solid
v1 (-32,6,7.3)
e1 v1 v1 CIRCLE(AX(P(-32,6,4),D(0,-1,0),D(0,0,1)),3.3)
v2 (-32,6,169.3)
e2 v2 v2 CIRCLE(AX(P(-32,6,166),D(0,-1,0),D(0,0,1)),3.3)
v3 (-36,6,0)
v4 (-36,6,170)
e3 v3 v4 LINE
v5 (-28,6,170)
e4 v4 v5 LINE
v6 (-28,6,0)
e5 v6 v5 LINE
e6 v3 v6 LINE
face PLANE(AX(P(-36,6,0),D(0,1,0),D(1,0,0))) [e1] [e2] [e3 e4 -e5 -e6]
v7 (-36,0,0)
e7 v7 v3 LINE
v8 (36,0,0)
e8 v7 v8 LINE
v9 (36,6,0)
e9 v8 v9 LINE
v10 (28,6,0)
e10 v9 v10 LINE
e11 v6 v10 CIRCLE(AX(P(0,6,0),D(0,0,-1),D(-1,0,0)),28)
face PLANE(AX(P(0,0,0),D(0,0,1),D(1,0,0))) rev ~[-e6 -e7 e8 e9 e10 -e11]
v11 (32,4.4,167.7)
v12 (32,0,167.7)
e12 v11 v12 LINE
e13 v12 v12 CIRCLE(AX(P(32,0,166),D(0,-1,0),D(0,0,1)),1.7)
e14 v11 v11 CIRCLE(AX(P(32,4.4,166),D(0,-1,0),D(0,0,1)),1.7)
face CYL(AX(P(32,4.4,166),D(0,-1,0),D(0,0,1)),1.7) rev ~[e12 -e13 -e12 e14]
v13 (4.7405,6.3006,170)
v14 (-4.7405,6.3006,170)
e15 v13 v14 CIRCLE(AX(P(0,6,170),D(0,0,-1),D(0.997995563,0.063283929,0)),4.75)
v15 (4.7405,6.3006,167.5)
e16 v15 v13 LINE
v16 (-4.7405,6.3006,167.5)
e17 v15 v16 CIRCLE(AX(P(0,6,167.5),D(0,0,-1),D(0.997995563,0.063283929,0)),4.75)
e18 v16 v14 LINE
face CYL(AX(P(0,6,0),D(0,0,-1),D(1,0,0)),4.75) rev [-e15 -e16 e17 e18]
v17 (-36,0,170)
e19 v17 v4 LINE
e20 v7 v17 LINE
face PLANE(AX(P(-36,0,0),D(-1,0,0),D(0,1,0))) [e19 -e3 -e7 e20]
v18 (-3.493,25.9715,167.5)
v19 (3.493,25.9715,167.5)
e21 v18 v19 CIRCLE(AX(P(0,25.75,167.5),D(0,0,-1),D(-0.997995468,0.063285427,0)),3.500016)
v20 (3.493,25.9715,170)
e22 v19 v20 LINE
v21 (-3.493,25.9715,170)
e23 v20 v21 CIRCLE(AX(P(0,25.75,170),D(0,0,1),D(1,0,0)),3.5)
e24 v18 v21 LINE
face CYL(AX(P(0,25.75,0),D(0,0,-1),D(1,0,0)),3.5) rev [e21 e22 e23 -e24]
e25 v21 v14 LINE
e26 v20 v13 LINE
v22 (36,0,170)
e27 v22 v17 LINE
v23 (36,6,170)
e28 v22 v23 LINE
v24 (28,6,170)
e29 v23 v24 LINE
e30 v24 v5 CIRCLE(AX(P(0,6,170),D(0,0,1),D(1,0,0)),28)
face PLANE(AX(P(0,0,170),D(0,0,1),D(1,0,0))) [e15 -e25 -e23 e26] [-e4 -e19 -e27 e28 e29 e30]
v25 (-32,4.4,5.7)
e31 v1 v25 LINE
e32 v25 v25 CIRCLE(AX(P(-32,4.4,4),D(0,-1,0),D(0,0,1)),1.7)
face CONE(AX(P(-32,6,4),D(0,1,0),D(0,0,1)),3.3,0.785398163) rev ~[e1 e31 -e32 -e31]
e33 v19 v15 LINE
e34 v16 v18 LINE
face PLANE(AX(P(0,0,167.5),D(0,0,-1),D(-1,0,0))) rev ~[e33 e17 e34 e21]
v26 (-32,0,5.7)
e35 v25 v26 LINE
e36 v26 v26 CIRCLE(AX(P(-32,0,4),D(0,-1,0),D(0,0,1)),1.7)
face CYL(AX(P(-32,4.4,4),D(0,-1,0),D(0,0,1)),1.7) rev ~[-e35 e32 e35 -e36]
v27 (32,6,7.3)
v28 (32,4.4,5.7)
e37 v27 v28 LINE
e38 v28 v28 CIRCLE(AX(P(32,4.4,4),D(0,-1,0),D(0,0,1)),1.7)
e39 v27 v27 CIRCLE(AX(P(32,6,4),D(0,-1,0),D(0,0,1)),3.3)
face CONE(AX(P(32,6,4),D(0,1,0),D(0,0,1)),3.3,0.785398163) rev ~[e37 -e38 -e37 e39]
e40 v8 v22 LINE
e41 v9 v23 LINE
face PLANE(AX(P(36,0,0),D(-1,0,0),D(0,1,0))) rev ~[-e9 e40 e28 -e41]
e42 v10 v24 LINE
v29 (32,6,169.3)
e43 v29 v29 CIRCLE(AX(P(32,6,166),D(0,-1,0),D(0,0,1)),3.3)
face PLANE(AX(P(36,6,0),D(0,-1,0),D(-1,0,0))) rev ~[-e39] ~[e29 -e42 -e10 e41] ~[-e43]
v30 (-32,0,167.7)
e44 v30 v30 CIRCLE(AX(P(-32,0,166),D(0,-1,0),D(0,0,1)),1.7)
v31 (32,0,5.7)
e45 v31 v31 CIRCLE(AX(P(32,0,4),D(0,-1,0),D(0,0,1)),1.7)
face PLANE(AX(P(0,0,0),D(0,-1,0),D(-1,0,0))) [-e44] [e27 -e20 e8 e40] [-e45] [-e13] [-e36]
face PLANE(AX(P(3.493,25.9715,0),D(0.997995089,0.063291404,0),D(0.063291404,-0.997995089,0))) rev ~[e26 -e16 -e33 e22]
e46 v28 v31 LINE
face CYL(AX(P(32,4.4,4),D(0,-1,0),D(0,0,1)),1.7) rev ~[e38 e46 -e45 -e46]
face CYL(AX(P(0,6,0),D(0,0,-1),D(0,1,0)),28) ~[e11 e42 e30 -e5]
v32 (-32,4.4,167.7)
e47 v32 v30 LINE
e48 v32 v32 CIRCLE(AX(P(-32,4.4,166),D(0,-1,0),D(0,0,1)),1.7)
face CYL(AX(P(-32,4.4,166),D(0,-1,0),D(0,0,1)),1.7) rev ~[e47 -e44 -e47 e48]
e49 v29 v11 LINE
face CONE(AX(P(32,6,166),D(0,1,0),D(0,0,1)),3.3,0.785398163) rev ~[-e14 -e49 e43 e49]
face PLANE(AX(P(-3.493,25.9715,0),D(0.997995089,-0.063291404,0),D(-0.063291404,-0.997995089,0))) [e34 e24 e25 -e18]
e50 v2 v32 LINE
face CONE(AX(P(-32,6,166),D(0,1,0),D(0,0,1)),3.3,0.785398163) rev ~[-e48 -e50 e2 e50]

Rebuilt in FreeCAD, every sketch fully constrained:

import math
import FreeCAD as App
import Part
import Sketcher
from FreeCAD import Vector
Q = App.Units.Quantity

doc = App.newDocument("Part")
body = doc.addObject("PartDesign::Body", "Body")

# Sketch on XY plane
sketch1 = body.newObject("Sketcher::SketchObject", "Sketch")
sketch1.AttachmentSupport = (doc.getObject("XY_Plane"), [""])
sketch1.MapMode = "FlatFace"
sketch1.addGeometry(Part.LineSegment(Vector(-36, 0, 0), Vector(36, 0, 0)), False)
sketch1.addGeometry(Part.LineSegment(Vector(36, 0, 0), Vector(36, 6, 0)), False)
sketch1.addGeometry(Part.LineSegment(Vector(36, 6, 0), Vector(28, 6, 0)), False)
sketch1.addGeometry(Part.ArcOfCircle(Part.Circle(Vector(0, 6, 0), Vector(0, 0, 1), 28), math.radians(0), math.radians(180)), False)
sketch1.addGeometry(Part.LineSegment(Vector(-28, 6, 0), Vector(-36, 6, 0)), False)
sketch1.addGeometry(Part.LineSegment(Vector(-36, 6, 0), Vector(-36, 0, 0)), False)
sketch1.addGeometry(Part.ArcOfCircle(Part.Circle(Vector(0, 6, 0), Vector(0, 0, 1), 4.8), math.radians(176), math.radians(364)), False)
sketch1.addGeometry(Part.LineSegment(Vector(-4.7, 6.3, 0), Vector(-3.5, 26, 0)), False)
sketch1.addGeometry(Part.ArcOfCircle(Part.Circle(Vector(0, 25.8, 0), Vector(0, 0, 1), 3.5), math.radians(4), math.radians(176)), False)
sketch1.addGeometry(Part.LineSegment(Vector(3.5, 26, 0), Vector(4.7, 6.3, 0)), False)
sketch1.addConstraint(Sketcher.Constraint("Coincident", 0, 2, 1, 1))
sketch1.addConstraint(Sketcher.Constraint("Coincident", 1, 2, 2, 1))
sketch1.addConstraint(Sketcher.Constraint("Coincident", 2, 2, 3, 1))
sketch1.addConstraint(Sketcher.Constraint("Coincident", 3, 2, 4, 1))
sketch1.addConstraint(Sketcher.Constraint("Coincident", 4, 2, 5, 1))
sketch1.addConstraint(Sketcher.Constraint("Coincident", 5, 2, 0, 1))
sketch1.addConstraint(Sketcher.Constraint("Tangent", 6, 1, 7, 1))
sketch1.addConstraint(Sketcher.Constraint("Tangent", 7, 2, 8, 2))
sketch1.addConstraint(Sketcher.Constraint("Tangent", 8, 1, 9, 1))
sketch1.addConstraint(Sketcher.Constraint("Tangent", 9, 2, 6, 2))
sketch1.addConstraint(Sketcher.Constraint("Horizontal", 0))
sketch1.addConstraint(Sketcher.Constraint("Vertical", 1))
sketch1.addConstraint(Sketcher.Constraint("Horizontal", 2))
sketch1.addConstraint(Sketcher.Constraint("Horizontal", 4))
sketch1.addConstraint(Sketcher.Constraint("Vertical", 5))
sketch1.addConstraint(Sketcher.Constraint("Coincident", 6, 3, 3, 3))
sketch1.addConstraint(Sketcher.Constraint("Symmetric", 0, 2, 5, 2, -1, 1))
sketch1.addConstraint(Sketcher.Constraint("Symmetric", 2, 2, 3, 2, -2))
sketch1.addConstraint(Sketcher.Constraint("PointOnObject", 8, 3, -2))
sketch1.addConstraint(Sketcher.Constraint("Horizontal", 6, 3, 1, 2))
sketch1.addConstraint(Sketcher.Constraint("Radius", 3, Q("28 mm")))
sketch1.addConstraint(Sketcher.Constraint("Radius", 8, Q("3.5 mm")))
sketch1.addConstraint(Sketcher.Constraint("DistanceX", 2, 2, 2, 1, Q("8 mm")))
sketch1.addConstraint(Sketcher.Constraint("DistanceY", 1, 1, 1, 2, Q("6 mm")))
sketch1.addConstraint(Sketcher.Constraint("Radius", 6, Q("4.75 mm")))
sketch1.addConstraint(Sketcher.Constraint("DistanceY", 3, 3, 8, 3, Q("19.75 mm")))
pad1 = body.newObject("PartDesign::Pad", "Pad")
pad1.Profile = sketch1
pad1.Length = 170

# Sketch on XY plane
sketch2 = body.newObject("Sketcher::SketchObject", "Sketch001")
sketch2.AttachmentSupport = (doc.getObject("XY_Plane"), [""])
sketch2.MapMode = "FlatFace"
sketch2.addGeometry(Part.ArcOfCircle(Part.Circle(Vector(0, 25.8, 0), Vector(0, 0, 1), 3.5), math.radians(4), math.radians(176)), False)
sketch2.addGeometry(Part.LineSegment(Vector(3.5, 26, 0), Vector(4.7, 6.3, 0)), False)
sketch2.addGeometry(Part.ArcOfCircle(Part.Circle(Vector(0, 6, 0), Vector(0, 0, 1), 4.8), math.radians(176), math.radians(364)), False)
sketch2.addGeometry(Part.LineSegment(Vector(-4.7, 6.3, 0), Vector(-3.5, 26, 0)), False)
sketch2.addConstraint(Sketcher.Constraint("Tangent", 0, 1, 1, 1))
sketch2.addConstraint(Sketcher.Constraint("Tangent", 1, 2, 2, 2))
sketch2.addConstraint(Sketcher.Constraint("Tangent", 2, 1, 3, 1))
sketch2.addConstraint(Sketcher.Constraint("Tangent", 3, 2, 0, 2))
sketch2.addConstraint(Sketcher.Constraint("Symmetric", 1, 2, 2, 1, -2))
sketch2.addConstraint(Sketcher.Constraint("Radius", 0, Q("3.5 mm")))
sketch2.addConstraint(Sketcher.Constraint("Radius", 2, Q("4.75 mm")))
sketch2.addConstraint(Sketcher.Constraint("DistanceY", -1, 1, 2, 3, Q("6 mm")))
sketch2.addConstraint(Sketcher.Constraint("DistanceY", -1, 1, 0, 3, Q("25.75 mm")))
pad2 = body.newObject("PartDesign::Pad", "Pad001")
pad2.Profile = sketch2
pad2.Length = 167.5

# Sketch on XZ plane
sketch3 = body.newObject("Sketcher::SketchObject", "Sketch002")
sketch3.AttachmentSupport = (doc.getObject("XZ_Plane"), [""])
sketch3.MapMode = "FlatFace"
sketch3.AttachmentOffset = App.Placement(Vector(0, 0, -6), App.Rotation())
sketch3.addGeometry(Part.Circle(Vector(-32, 166, 0), Vector(0, 0, 1), 1.7), False)
sketch3.addGeometry(Part.Circle(Vector(32, 166, 0), Vector(0, 0, 1), 1.7), False)
sketch3.addGeometry(Part.Circle(Vector(-32, 4, 0), Vector(0, 0, 1), 1.7), False)
sketch3.addGeometry(Part.Circle(Vector(32, 4, 0), Vector(0, 0, 1), 1.7), False)
sketch3.addConstraint(Sketcher.Constraint("Equal", 0, 1))
sketch3.addConstraint(Sketcher.Constraint("Equal", 1, 2))
sketch3.addConstraint(Sketcher.Constraint("Equal", 2, 3))
sketch3.addConstraint(Sketcher.Constraint("Symmetric", 0, 3, 1, 3, -2))
sketch3.addConstraint(Sketcher.Constraint("Symmetric", 2, 3, 3, 3, -2))
sketch3.addConstraint(Sketcher.Constraint("Vertical", 0, 3, 2, 3))
sketch3.addConstraint(Sketcher.Constraint("Diameter", 0, Q("3.4 mm")))
sketch3.addConstraint(Sketcher.Constraint("DistanceX", 0, 3, -1, 1, Q("32 mm")))
sketch3.addConstraint(Sketcher.Constraint("DistanceY", -1, 1, 0, 3, Q("166 mm")))
sketch3.addConstraint(Sketcher.Constraint("DistanceY", -1, 1, 2, 3, Q("4 mm")))
doc.recompute()
hole = body.newObject("PartDesign::Hole", "Hole")
hole.Profile = sketch3
hole.ThreadType = "None"
hole.Diameter = 3.4
hole.DepthType = "Dimension"
hole.Depth = 6
hole.DrillPoint = "Flat"
hole.HoleCutType = "Countersink"
hole.HoleCutDiameter = 6.6
hole.HoleCutCountersinkAngle = 90
hole.Reversed = True

doc.recompute()
